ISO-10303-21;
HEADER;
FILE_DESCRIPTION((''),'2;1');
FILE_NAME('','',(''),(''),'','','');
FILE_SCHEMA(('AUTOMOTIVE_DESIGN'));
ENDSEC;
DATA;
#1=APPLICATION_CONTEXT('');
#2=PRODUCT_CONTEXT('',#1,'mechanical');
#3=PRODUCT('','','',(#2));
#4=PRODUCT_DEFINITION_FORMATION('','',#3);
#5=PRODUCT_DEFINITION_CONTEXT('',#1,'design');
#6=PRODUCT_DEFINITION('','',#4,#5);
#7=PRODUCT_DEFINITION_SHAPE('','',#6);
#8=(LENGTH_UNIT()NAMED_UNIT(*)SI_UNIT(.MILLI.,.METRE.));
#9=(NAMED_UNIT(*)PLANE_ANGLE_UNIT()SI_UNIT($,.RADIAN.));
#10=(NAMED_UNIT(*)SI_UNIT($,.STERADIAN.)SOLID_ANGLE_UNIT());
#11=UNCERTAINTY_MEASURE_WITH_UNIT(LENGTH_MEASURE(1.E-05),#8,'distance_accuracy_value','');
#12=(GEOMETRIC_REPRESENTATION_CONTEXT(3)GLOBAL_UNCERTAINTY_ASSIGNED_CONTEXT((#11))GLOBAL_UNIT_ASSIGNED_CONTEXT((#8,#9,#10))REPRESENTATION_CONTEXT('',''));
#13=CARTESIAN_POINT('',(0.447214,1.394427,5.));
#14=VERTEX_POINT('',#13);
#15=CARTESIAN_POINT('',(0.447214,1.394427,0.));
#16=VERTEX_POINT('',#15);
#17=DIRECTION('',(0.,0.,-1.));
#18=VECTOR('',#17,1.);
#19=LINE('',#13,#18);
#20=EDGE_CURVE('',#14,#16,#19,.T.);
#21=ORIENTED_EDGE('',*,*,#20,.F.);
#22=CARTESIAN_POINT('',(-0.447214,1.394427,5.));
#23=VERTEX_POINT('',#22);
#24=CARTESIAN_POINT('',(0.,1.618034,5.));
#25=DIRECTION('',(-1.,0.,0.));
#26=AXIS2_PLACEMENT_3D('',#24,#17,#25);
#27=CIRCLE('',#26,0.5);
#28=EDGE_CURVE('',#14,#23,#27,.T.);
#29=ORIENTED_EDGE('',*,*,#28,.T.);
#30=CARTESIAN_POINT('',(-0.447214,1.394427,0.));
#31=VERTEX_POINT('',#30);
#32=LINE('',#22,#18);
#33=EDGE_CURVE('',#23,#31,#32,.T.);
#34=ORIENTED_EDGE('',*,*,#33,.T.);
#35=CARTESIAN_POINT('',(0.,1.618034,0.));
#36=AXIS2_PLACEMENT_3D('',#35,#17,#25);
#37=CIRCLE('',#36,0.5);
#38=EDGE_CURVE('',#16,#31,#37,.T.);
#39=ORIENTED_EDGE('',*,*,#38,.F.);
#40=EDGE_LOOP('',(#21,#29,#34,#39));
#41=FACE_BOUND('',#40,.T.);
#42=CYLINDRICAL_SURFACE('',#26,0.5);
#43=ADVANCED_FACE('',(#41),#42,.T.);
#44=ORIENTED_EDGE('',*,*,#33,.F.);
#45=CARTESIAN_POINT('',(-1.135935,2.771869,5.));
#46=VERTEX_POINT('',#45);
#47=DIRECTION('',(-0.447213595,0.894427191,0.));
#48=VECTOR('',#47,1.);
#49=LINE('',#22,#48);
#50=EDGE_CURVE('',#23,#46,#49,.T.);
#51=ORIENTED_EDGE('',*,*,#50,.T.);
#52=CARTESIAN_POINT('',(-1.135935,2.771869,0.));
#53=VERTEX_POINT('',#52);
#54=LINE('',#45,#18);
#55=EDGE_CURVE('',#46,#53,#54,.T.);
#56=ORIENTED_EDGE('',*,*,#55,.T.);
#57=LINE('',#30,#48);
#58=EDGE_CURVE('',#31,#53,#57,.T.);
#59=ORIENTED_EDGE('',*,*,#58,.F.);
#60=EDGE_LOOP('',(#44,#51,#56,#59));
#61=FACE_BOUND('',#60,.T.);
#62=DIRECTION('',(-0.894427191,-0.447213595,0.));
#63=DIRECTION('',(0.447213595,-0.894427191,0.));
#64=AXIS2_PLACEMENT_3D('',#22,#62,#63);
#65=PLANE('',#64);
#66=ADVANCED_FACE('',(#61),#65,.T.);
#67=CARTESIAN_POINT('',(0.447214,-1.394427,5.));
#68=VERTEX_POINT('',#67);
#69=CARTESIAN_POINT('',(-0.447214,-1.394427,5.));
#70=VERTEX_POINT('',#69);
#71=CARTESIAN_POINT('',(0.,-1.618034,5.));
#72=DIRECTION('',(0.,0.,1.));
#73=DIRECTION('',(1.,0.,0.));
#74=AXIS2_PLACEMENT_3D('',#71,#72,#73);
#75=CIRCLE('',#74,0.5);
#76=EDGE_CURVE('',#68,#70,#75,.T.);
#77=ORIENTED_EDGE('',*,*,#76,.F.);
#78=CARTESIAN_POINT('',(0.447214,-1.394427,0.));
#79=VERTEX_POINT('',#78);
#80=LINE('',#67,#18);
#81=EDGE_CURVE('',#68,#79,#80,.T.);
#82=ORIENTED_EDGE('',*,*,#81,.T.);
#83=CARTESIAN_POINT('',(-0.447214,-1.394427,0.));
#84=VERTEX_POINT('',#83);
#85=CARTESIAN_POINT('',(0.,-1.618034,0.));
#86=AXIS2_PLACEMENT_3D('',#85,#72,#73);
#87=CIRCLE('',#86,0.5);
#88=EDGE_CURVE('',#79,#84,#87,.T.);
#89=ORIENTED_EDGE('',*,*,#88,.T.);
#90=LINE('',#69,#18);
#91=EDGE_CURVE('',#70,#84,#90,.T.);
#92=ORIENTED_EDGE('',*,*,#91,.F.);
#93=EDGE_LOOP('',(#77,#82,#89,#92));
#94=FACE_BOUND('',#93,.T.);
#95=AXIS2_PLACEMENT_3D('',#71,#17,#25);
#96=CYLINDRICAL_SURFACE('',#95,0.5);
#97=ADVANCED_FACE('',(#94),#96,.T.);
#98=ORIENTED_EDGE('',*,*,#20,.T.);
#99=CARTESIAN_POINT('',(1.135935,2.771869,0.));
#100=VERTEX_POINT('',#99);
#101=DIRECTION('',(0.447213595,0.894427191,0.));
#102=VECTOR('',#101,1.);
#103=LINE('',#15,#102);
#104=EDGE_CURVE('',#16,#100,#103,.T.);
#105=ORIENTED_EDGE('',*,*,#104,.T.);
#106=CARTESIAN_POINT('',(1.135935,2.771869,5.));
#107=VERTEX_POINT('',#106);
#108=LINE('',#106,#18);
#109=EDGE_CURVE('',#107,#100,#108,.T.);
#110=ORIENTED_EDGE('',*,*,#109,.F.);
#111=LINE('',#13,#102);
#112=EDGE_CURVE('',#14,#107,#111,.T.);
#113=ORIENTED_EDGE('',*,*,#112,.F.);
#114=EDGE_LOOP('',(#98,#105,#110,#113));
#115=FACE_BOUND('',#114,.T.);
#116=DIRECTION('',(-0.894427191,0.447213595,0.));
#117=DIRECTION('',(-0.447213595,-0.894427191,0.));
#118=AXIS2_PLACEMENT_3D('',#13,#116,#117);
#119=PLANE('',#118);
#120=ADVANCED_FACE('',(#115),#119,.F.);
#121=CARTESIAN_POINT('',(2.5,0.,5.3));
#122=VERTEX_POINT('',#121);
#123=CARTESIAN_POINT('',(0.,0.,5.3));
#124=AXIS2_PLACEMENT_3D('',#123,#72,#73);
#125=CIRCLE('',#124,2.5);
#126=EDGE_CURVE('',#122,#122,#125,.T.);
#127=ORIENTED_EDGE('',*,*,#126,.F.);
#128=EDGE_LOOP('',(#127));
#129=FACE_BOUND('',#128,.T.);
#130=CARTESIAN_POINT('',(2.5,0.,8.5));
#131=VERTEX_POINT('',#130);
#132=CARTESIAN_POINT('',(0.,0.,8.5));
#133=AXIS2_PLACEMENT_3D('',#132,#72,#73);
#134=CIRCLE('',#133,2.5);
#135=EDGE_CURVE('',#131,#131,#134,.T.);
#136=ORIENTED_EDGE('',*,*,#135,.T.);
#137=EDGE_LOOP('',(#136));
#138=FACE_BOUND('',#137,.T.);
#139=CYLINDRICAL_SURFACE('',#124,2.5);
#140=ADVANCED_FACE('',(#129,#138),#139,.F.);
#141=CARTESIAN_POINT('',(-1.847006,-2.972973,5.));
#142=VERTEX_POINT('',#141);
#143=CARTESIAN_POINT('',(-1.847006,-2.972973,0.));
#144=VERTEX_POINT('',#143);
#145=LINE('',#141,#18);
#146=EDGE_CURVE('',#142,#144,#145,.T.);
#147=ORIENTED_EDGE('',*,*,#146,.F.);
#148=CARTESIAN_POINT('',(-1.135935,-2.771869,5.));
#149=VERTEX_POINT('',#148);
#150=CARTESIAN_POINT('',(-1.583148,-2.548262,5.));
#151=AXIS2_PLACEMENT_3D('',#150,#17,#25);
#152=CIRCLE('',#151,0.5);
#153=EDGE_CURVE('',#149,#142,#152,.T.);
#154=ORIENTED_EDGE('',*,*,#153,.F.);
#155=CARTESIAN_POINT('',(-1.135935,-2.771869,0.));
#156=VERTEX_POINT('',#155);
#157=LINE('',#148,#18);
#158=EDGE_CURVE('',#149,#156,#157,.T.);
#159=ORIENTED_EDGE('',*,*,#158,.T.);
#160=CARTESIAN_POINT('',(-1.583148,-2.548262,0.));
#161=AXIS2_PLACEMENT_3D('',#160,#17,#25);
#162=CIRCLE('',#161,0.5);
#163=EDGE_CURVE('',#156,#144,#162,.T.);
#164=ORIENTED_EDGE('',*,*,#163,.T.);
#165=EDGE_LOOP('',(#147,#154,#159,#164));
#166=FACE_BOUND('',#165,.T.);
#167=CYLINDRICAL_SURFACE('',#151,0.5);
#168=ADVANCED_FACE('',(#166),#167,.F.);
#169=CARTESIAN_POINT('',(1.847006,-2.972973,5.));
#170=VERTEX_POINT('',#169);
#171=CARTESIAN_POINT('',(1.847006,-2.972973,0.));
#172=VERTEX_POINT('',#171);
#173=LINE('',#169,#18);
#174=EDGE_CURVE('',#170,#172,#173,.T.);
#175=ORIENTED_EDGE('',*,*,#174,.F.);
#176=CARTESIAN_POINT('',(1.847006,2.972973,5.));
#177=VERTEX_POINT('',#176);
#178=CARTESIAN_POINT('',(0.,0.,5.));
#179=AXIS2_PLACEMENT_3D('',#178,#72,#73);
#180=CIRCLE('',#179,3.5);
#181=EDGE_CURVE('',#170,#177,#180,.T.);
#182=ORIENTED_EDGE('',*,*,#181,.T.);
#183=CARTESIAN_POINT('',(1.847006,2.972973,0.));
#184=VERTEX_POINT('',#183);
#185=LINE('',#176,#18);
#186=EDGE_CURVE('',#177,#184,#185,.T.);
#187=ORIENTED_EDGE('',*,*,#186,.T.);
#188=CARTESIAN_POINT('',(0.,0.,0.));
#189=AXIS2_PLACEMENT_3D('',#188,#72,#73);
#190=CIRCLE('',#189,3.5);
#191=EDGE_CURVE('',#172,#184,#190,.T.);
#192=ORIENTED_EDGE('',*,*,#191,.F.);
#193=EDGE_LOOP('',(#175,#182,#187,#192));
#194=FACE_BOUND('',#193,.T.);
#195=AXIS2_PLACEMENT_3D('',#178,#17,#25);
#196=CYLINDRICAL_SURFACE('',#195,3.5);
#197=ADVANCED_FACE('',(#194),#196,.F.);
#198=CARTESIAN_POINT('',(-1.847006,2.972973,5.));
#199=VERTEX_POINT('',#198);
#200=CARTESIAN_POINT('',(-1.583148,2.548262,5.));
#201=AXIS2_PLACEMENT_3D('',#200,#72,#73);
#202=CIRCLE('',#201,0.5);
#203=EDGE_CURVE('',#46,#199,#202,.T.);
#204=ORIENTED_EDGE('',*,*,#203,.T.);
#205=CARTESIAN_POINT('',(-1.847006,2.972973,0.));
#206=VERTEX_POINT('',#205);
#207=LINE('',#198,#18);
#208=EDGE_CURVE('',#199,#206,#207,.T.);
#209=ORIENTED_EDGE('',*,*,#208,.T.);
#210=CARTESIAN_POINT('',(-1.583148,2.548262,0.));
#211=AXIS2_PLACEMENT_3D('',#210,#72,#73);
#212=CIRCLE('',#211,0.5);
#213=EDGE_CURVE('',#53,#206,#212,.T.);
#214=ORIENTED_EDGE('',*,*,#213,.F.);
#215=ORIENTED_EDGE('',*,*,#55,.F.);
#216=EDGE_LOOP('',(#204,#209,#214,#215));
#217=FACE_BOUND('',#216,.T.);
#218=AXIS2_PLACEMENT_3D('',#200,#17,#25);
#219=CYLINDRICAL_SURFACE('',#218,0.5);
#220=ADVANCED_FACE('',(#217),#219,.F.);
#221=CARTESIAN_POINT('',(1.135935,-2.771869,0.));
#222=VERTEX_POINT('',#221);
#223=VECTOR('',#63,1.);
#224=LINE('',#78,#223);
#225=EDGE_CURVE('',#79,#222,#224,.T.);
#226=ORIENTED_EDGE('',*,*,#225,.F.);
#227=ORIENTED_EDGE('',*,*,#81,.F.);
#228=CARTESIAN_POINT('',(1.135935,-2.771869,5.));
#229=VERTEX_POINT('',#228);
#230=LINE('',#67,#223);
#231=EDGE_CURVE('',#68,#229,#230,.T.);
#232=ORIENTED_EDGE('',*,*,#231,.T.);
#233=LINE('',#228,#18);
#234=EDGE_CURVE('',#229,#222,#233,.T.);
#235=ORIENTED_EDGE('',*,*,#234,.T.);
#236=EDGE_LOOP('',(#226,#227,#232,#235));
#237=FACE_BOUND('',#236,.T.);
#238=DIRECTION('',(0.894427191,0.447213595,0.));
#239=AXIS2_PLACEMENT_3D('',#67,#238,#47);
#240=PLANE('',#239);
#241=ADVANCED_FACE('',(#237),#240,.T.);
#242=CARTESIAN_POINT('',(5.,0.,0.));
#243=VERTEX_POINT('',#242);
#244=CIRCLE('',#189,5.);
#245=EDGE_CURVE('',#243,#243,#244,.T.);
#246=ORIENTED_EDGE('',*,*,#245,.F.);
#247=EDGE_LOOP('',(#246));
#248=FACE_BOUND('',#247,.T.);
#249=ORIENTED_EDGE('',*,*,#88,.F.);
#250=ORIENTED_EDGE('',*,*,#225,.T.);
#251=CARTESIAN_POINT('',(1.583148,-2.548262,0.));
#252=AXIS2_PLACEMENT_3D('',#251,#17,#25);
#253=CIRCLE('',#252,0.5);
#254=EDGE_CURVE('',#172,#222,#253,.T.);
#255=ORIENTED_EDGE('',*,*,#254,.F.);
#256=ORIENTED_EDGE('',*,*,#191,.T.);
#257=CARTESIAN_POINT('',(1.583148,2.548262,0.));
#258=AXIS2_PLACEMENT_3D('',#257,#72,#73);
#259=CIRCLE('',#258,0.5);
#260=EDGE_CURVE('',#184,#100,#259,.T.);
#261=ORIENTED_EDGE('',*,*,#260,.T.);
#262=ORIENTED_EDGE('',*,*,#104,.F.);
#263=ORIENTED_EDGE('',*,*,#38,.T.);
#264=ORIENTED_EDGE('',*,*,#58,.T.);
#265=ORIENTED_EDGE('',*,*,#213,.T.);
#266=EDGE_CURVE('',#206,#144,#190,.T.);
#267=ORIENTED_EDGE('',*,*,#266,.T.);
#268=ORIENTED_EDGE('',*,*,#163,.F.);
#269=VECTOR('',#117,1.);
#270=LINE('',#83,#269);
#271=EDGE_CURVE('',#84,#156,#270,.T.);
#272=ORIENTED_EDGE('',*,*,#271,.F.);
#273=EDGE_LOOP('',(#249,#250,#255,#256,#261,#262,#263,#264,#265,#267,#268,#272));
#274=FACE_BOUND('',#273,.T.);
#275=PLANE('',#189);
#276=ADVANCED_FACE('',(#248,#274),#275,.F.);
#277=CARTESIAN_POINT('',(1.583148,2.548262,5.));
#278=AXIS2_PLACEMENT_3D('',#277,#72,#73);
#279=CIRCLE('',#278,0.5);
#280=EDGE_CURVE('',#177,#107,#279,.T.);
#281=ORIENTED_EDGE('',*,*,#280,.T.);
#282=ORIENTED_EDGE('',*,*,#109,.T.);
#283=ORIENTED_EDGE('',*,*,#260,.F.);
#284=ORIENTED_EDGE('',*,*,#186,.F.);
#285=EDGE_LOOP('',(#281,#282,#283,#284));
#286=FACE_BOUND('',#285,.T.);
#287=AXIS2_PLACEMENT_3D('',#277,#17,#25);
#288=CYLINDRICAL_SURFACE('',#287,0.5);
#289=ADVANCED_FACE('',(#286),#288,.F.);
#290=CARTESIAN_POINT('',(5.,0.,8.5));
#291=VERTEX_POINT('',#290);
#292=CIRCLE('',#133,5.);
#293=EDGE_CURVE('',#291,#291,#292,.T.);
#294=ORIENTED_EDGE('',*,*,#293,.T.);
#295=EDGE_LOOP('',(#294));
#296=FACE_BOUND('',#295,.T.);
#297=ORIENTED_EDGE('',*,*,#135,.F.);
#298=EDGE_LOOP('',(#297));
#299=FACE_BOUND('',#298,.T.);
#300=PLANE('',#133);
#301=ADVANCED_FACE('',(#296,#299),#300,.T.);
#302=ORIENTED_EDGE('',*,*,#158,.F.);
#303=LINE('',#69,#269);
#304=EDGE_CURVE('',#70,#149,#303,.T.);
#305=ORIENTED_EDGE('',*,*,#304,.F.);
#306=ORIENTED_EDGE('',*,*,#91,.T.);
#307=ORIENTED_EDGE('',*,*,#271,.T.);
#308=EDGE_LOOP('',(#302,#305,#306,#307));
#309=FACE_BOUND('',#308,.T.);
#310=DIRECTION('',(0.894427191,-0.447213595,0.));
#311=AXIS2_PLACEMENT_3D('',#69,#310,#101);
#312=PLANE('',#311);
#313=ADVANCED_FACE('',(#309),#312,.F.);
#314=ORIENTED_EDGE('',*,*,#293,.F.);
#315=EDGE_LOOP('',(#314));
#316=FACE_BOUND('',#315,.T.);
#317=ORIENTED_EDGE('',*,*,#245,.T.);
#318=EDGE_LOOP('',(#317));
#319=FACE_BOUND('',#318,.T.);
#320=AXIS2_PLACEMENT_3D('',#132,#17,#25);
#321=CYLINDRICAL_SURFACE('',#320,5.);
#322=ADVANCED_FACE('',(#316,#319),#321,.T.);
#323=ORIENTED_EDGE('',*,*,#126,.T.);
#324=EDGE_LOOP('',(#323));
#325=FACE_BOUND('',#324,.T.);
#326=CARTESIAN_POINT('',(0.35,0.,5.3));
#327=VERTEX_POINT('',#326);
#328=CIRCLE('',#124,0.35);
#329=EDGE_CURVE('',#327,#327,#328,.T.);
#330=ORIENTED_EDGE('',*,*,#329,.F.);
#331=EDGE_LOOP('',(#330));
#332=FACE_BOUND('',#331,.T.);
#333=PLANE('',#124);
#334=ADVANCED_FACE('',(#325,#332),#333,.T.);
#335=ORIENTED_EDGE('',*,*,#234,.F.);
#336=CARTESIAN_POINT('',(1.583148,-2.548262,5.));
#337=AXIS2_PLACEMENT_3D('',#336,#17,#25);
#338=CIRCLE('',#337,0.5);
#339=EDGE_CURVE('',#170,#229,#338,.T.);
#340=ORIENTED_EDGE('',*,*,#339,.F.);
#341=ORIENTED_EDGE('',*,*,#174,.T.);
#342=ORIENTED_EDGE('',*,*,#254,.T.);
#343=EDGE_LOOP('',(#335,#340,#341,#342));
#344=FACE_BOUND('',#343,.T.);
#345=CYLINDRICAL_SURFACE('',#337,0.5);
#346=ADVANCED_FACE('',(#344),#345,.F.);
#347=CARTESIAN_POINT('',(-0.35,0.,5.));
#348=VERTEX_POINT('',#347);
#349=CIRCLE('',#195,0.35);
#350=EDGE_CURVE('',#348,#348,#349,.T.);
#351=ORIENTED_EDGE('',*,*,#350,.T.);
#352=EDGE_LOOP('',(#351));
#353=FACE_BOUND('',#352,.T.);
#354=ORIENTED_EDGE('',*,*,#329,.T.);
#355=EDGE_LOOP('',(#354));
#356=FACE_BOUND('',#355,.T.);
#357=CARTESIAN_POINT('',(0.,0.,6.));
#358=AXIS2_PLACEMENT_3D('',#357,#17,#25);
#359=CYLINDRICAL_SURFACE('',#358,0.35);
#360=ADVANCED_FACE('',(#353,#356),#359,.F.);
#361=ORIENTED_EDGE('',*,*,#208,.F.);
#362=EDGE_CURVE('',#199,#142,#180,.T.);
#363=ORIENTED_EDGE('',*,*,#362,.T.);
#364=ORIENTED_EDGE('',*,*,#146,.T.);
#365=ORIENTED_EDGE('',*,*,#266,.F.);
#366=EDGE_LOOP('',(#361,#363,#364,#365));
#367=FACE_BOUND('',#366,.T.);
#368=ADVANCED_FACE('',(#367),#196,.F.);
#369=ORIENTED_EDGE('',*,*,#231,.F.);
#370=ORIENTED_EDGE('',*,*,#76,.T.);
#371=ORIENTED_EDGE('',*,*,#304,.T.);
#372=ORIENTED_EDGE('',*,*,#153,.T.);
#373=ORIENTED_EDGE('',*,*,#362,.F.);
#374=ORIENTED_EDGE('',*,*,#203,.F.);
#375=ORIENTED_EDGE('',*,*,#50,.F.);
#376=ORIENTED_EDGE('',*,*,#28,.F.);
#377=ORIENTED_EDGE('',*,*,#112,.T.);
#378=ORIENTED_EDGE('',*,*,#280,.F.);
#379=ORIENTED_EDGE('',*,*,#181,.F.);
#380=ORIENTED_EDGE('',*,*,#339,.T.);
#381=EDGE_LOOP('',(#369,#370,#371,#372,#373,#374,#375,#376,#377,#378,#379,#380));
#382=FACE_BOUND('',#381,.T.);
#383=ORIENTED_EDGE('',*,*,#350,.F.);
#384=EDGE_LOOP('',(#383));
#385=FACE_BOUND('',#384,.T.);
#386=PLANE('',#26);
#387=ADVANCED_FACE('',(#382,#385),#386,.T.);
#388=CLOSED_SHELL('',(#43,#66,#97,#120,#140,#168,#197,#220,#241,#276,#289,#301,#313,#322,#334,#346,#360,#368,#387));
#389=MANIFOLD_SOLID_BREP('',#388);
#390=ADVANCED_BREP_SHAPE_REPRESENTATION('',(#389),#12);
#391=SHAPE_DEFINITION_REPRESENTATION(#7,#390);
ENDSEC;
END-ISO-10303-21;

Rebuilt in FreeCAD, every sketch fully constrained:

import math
import FreeCAD as App
import Part
import Sketcher
Q = App.Units.Quantity

doc = App.newDocument("Part")
body = doc.addObject("PartDesign::Body", "Body")

sketch1 = body.newObject("Sketcher::SketchObject", "Sketch")
sketch1.AttachmentSupport = (doc.getObject("XY_Plane"), [""])
sketch1.MapMode = "FlatFace"
sketch1.addGeometry(Part.Circle(App.Vector(0, 0, 0), App.Vector(0, 0, 1), 5), False)
sketch1.addConstraint(Sketcher.Constraint("Coincident", 0, 3, -1, 1))
sketch1.addConstraint(Sketcher.Constraint("Diameter", 0, Q("10 mm")))
pad1 = body.newObject("PartDesign::Pad", "Pad")
pad1.Profile = sketch1
pad1.Length = 8.5

sketch2 = body.newObject("Sketcher::SketchObject", "Sketch001")
sketch2.AttachmentSupport = (doc.getObject("XY_Plane"), [""])
sketch2.MapMode = "FlatFace"
sketch2.addGeometry(Part.LineSegment(App.Vector(-0.45, 1.39, 0), App.Vector(-1.14, 2.77, 0)), False)
sketch2.addGeometry(Part.ArcOfCircle(Part.Circle(App.Vector(-1.58, 2.55, 0), App.Vector(0, 0, 1), 0.5), math.radians(27), math.radians(122)), False)
sketch2.addGeometry(Part.ArcOfCircle(Part.Circle(App.Vector(0, 0, 0), App.Vector(0, 0, 1), 3.5), math.radians(122), math.radians(238)), False)
sketch2.addGeometry(Part.ArcOfCircle(Part.Circle(App.Vector(-1.58, -2.55, 0), App.Vector(0, 0, 1), 0.5), math.radians(-122), math.radians(-27)), False)
sketch2.addGeometry(Part.LineSegment(App.Vector(-1.14, -2.77, 0), App.Vector(-0.45, -1.39, 0)), False)
sketch2.addGeometry(Part.ArcOfCircle(Part.Circle(App.Vector(0, -1.62, 0), App.Vector(0, 0, 1), 0.5), math.radians(27), math.radians(153)), False)
sketch2.addGeometry(Part.LineSegment(App.Vector(0.45, -1.39, 0), App.Vector(1.14, -2.77, 0)), False)
sketch2.addGeometry(Part.ArcOfCircle(Part.Circle(App.Vector(1.58, -2.55, 0), App.Vector(0, 0, 1), 0.5), math.radians(-153), math.radians(-58)), False)
sketch2.addGeometry(Part.ArcOfCircle(Part.Circle(App.Vector(0, 0, 0), App.Vector(0, 0, 1), 3.5), math.radians(-58), math.radians(58)), False)
sketch2.addGeometry(Part.ArcOfCircle(Part.Circle(App.Vector(1.58, 2.55, 0), App.Vector(0, 0, 1), 0.5), math.radians(58), math.radians(153)), False)
sketch2.addGeometry(Part.LineSegment(App.Vector(1.14, 2.77, 0), App.Vector(0.45, 1.39, 0)), False)
sketch2.addGeometry(Part.ArcOfCircle(Part.Circle(App.Vector(0, 1.62, 0), App.Vector(0, 0, 1), 0.5), math.radians(-153), math.radians(-27)), False)
sketch2.addConstraint(Sketcher.Constraint("Tangent", 0, 2, 1, 1))
sketch2.addConstraint(Sketcher.Constraint("Tangent", 1, 2, 2, 1))
sketch2.addConstraint(Sketcher.Constraint("Tangent", 2, 2, 3, 1))
sketch2.addConstraint(Sketcher.Constraint("Tangent", 3, 2, 4, 1))
sketch2.addConstraint(Sketcher.Constraint("Tangent", 4, 2, 5, 2))
sketch2.addConstraint(Sketcher.Constraint("Tangent", 5, 1, 6, 1))
sketch2.addConstraint(Sketcher.Constraint("Tangent", 6, 2, 7, 1))
sketch2.addConstraint(Sketcher.Constraint("Tangent", 7, 2, 8, 1))
sketch2.addConstraint(Sketcher.Constraint("Tangent", 8, 2, 9, 1))
sketch2.addConstraint(Sketcher.Constraint("Tangent", 9, 2, 10, 1))
sketch2.addConstraint(Sketcher.Constraint("Tangent", 10, 2, 11, 2))
sketch2.addConstraint(Sketcher.Constraint("Tangent", 11, 1, 0, 1))
sketch2.addConstraint(Sketcher.Constraint("Coincident", 2, 3, -1, 1))
sketch2.addConstraint(Sketcher.Constraint("Coincident", 8, 3, -1, 1))
sketch2.addConstraint(Sketcher.Constraint("Equal", 1, 3))
sketch2.addConstraint(Sketcher.Constraint("Equal", 3, 5))
sketch2.addConstraint(Sketcher.Constraint("Equal", 5, 7))
sketch2.addConstraint(Sketcher.Constraint("Equal", 2, 8))
sketch2.addConstraint(Sketcher.Constraint("Equal", 7, 9))
sketch2.addConstraint(Sketcher.Constraint("Equal", 9, 11))
sketch2.addConstraint(Sketcher.Constraint("Symmetric", 5, 3, 11, 3, -1, 1))
sketch2.addConstraint(Sketcher.Constraint("Symmetric", 4, 2, 5, 1, -2))
sketch2.addConstraint(Sketcher.Constraint("Parallel", 0, 6))
sketch2.addConstraint(Sketcher.Constraint("Parallel", 4, 10))
sketch2.addConstraint(Sketcher.Constraint("Radius", 1, Q("0.5 mm")))
sketch2.addConstraint(Sketcher.Constraint("Radius", 2, Q("3.5 mm")))
sketch2.addConstraint(Sketcher.Constraint("DistanceX", 1, 3, -1, 1, Q("1.583148 mm")))
sketch2.addConstraint(Sketcher.Constraint("DistanceY", -1, 1, 0, 2, Q("2.771869 mm")))
pocket1 = body.newObject("PartDesign::Pocket", "Pocket")
pocket1.Profile = sketch2
pocket1.Length = 5
pocket1.Reversed = True

sketch3 = body.newObject("Sketcher::SketchObject", "Sketch002")
sketch3.AttachmentSupport = (doc.getObject("XY_Plane"), [""])
sketch3.MapMode = "FlatFace"
sketch3.AttachmentOffset = App.Placement(App.Vector(0, 0, 8.5), App.Rotation())
sketch3.addGeometry(Part.Circle(App.Vector(0, 0, 0), App.Vector(0, 0, 1), 2.5), False)
sketch3.addConstraint(Sketcher.Constraint("Coincident", 0, 3, -1, 1))
sketch3.addConstraint(Sketcher.Constraint("Diameter", 0, Q("5 mm")))
pocket2 = body.newObject("PartDesign::Pocket", "Pocket001")
pocket2.Profile = sketch3
pocket2.Length = 3.2

sketch4 = body.newObject("Sketcher::SketchObject", "Sketch003")
sketch4.AttachmentSupport = (doc.getObject("XY_Plane"), [""])
sketch4.MapMode = "FlatFace"
sketch4.AttachmentOffset = App.Placement(App.Vector(0, 0, 5), App.Rotation())
sketch4.addGeometry(Part.Circle(App.Vector(0, 0, 0), App.Vector(0, 0, 1), 0.35), False)
sketch4.addConstraint(Sketcher.Constraint("Coincident", 0, 3, -1, 1))
sketch4.addConstraint(Sketcher.Constraint("Diameter", 0, Q("0.7 mm")))
pocket3 = body.newObject("PartDesign::Pocket", "Pocket002")
pocket3.Profile = sketch4
pocket3.Length = 1
pocket3.Reversed = True

doc.recompute()
